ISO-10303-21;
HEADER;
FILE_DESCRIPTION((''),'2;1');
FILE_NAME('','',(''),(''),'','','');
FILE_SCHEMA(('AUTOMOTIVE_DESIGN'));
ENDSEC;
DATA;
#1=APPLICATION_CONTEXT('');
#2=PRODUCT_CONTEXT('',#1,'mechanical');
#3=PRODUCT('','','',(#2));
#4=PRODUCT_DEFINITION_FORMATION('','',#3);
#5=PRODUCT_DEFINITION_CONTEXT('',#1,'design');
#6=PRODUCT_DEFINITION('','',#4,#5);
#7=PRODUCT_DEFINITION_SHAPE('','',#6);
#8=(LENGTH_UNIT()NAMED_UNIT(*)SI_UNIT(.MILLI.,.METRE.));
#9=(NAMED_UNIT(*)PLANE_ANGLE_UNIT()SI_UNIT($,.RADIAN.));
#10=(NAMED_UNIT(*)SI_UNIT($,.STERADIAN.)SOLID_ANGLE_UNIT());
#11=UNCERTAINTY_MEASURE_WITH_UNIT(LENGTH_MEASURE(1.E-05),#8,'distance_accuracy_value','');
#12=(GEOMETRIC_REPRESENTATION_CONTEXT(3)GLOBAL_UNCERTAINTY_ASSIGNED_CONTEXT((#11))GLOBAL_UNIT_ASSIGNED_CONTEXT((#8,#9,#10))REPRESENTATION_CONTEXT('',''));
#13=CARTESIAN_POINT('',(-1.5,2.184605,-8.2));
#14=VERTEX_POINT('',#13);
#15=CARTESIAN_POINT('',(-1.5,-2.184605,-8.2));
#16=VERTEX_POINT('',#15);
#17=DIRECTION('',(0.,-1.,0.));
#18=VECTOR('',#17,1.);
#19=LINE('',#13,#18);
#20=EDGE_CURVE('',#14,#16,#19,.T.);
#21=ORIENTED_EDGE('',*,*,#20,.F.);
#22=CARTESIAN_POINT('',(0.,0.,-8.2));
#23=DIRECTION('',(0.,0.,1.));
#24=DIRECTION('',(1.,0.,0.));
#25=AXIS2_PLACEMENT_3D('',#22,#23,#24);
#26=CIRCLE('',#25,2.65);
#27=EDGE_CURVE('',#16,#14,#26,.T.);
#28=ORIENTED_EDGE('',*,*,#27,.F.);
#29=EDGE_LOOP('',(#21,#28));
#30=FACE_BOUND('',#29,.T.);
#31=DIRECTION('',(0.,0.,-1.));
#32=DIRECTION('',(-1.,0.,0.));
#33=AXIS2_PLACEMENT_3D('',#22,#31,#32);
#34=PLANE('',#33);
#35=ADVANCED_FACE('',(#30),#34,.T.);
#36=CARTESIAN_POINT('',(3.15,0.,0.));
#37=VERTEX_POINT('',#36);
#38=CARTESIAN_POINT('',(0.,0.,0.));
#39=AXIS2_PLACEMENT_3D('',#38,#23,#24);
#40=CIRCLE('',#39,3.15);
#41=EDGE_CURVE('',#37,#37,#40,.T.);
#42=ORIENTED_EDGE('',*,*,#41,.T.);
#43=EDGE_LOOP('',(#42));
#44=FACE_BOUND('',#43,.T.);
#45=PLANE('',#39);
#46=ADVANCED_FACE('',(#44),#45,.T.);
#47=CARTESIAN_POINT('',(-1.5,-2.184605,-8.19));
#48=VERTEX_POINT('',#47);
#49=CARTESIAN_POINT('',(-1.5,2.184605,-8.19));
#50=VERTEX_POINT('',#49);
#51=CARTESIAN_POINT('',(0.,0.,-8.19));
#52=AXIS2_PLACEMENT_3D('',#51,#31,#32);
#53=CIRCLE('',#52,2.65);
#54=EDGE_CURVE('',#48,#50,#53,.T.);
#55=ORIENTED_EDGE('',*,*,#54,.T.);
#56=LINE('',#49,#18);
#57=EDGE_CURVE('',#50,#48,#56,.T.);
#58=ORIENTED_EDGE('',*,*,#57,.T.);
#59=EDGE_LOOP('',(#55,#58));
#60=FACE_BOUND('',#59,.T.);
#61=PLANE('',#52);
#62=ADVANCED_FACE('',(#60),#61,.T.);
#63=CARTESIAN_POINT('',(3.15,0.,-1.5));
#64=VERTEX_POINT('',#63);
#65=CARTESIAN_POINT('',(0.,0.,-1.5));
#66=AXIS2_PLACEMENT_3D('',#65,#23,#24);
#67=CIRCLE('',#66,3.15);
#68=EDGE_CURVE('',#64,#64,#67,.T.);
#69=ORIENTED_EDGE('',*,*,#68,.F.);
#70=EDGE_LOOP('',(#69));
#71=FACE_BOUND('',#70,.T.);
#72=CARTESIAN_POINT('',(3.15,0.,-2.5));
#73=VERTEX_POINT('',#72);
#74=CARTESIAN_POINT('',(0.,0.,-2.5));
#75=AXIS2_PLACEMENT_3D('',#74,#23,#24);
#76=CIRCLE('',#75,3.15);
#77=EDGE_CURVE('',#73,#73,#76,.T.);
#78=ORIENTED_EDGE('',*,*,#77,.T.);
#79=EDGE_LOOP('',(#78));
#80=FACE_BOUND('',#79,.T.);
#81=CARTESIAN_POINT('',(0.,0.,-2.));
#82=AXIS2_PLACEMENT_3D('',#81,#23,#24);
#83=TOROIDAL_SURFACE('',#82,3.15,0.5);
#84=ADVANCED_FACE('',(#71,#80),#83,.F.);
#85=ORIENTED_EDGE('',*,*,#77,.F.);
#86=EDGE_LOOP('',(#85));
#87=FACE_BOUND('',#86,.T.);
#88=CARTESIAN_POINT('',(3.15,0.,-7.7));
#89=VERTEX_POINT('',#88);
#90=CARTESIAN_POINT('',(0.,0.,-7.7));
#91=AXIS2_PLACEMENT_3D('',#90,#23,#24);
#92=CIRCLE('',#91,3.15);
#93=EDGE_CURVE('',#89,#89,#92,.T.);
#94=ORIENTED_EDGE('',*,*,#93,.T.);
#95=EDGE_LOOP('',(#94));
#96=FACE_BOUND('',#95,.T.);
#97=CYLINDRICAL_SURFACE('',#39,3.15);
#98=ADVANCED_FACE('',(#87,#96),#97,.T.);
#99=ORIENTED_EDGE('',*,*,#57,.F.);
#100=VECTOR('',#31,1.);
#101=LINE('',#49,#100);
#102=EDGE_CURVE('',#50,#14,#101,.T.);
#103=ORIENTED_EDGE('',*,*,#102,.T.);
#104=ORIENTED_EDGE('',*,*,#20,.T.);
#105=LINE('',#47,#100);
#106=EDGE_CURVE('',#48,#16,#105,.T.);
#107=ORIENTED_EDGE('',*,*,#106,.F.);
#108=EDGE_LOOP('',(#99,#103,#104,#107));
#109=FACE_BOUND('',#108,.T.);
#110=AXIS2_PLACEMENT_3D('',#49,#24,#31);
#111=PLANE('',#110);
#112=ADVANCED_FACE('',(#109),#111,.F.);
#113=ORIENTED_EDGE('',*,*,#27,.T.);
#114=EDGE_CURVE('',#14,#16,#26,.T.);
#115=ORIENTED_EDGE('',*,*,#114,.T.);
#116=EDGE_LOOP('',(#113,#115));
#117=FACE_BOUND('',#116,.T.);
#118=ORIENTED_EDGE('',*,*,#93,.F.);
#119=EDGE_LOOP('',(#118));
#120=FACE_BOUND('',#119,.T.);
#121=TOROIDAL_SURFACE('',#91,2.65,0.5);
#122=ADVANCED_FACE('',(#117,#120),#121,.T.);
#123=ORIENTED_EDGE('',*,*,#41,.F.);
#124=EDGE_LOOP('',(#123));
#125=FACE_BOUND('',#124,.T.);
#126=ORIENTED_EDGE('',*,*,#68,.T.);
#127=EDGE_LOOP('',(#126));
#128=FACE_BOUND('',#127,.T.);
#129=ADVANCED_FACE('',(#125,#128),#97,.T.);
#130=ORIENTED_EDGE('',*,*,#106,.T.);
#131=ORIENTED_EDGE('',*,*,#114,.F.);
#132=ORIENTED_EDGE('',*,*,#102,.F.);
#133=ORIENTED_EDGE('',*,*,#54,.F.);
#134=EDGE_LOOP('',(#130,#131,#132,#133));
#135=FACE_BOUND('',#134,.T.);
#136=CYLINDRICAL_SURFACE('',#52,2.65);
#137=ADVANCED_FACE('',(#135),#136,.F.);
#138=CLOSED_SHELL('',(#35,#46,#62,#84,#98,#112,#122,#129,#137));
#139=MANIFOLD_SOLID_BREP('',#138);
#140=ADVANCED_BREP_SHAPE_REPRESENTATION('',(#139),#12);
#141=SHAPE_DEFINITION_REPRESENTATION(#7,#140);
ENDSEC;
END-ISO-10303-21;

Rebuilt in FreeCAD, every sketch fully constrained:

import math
import FreeCAD as App
import Part
import Sketcher
Q = App.Units.Quantity

doc = App.newDocument("Part")
body = doc.addObject("PartDesign::Body", "Body")

# Sketch on XZ plane
sketch1 = body.newObject("Sketcher::SketchObject", "Sketch")
sketch1.AttachmentSupport = (doc.getObject("XZ_Plane"), [""])
sketch1.MapMode = "FlatFace"
sketch1.addGeometry([
    Part.LineSegment(App.Vector(0, 0, 0), App.Vector(3.15, 0, 0)),  # 0
    Part.LineSegment(App.Vector(3.15, 0, 0), App.Vector(3.15, -1.5, 0)),  # 1
    Part.ArcOfCircle(Part.Circle(App.Vector(3.15, -2, 0), App.Vector(0, 0, 1), 0.5), math.radians(90), math.radians(270)),  # 2
    Part.LineSegment(App.Vector(3.15, -2.5, 0), App.Vector(3.15, -7.7, 0)),  # 3
    Part.ArcOfCircle(Part.Circle(App.Vector(2.65, -7.7, 0), App.Vector(0, 0, 1), 0.5), math.radians(-90), math.radians(0)),  # 4
    Part.LineSegment(App.Vector(2.65, -8.2, 0), App.Vector(0, -8.2, 0)),  # 5
    Part.LineSegment(App.Vector(0, -8.2, 0), App.Vector(0, 0, 0)),  # 6
], False)
sketch1.addConstraint([
    Sketcher.Constraint("Coincident", 0, 2, 1, 1),
    Sketcher.Constraint("Coincident", 1, 2, 2, 1),
    Sketcher.Constraint("Coincident", 2, 2, 3, 1),
    Sketcher.Constraint("Tangent", 3, 2, 4, 2),
    Sketcher.Constraint("Tangent", 4, 1, 5, 1),
    Sketcher.Constraint("Coincident", 5, 2, 6, 1),
    Sketcher.Constraint("Coincident", 6, 2, 0, 1),
    Sketcher.Constraint("Horizontal", 0),
    Sketcher.Constraint("Vertical", 1),
    Sketcher.Constraint("Vertical", 3),
    Sketcher.Constraint("Horizontal", 5),
    Sketcher.Constraint("Vertical", 6),
    Sketcher.Constraint("Coincident", 6, 2, -1, 1),
    Sketcher.Constraint("Equal", 2, 4),
    Sketcher.Constraint("Vertical", 2, 3, 0, 2),
    Sketcher.Constraint("Vertical", 1, 2, 2, 2),
    Sketcher.Constraint("Radius", 2, Q("0.5 mm")),
    Sketcher.Constraint("DistanceY", 1, 2, 1, 1, Q("1.5 mm")),
    Sketcher.Constraint("DistanceY", 3, 2, 3, 1, Q("5.2 mm")),
    Sketcher.Constraint("DistanceX", 0, 1, 0, 2, Q("3.15 mm")),
])
revolution = body.newObject("PartDesign::Revolution", "Revolution")
revolution.Profile = sketch1
revolution.ReferenceAxis = (sketch1, ["V_Axis"])
revolution.Angle = 360

# Sketch on XY plane
sketch2 = body.newObject("Sketcher::SketchObject", "Sketch001")
sketch2.AttachmentSupport = (doc.getObject("XY_Plane"), [""])
sketch2.MapMode = "FlatFace"
sketch2.AttachmentOffset = App.Placement(App.Vector(0, 0, -8.2), App.Rotation())
sketch2.addGeometry([
    Part.LineSegment(App.Vector(-1.5, 2.184605, 0), App.Vector(-1.5, -2.184605, 0)),
    Part.ArcOfCircle(Part.Circle(App.Vector(0, 0, 0), App.Vector(0, 0, 1), 2.65), math.radians(124.474385), math.radians(235.525615)),
], False)
sketch2.addConstraint([
    Sketcher.Constraint("Coincident", 0, 1, 1, 1),
    Sketcher.Constraint("Coincident", 1, 2, 0, 2),
    Sketcher.Constraint("Vertical", 0),
    Sketcher.Constraint("Coincident", 1, 3, -1, 1),
    Sketcher.Constraint("Radius", 1, Q("2.65 mm")),
    Sketcher.Constraint("DistanceX", 0, 1, -1, 1, Q("1.5 mm")),
])
pocket1 = body.newObject("PartDesign::Pocket", "Pocket")
pocket1.Profile = sketch2
pocket1.Length = 0.01
pocket1.Reversed = True

doc.recompute()
